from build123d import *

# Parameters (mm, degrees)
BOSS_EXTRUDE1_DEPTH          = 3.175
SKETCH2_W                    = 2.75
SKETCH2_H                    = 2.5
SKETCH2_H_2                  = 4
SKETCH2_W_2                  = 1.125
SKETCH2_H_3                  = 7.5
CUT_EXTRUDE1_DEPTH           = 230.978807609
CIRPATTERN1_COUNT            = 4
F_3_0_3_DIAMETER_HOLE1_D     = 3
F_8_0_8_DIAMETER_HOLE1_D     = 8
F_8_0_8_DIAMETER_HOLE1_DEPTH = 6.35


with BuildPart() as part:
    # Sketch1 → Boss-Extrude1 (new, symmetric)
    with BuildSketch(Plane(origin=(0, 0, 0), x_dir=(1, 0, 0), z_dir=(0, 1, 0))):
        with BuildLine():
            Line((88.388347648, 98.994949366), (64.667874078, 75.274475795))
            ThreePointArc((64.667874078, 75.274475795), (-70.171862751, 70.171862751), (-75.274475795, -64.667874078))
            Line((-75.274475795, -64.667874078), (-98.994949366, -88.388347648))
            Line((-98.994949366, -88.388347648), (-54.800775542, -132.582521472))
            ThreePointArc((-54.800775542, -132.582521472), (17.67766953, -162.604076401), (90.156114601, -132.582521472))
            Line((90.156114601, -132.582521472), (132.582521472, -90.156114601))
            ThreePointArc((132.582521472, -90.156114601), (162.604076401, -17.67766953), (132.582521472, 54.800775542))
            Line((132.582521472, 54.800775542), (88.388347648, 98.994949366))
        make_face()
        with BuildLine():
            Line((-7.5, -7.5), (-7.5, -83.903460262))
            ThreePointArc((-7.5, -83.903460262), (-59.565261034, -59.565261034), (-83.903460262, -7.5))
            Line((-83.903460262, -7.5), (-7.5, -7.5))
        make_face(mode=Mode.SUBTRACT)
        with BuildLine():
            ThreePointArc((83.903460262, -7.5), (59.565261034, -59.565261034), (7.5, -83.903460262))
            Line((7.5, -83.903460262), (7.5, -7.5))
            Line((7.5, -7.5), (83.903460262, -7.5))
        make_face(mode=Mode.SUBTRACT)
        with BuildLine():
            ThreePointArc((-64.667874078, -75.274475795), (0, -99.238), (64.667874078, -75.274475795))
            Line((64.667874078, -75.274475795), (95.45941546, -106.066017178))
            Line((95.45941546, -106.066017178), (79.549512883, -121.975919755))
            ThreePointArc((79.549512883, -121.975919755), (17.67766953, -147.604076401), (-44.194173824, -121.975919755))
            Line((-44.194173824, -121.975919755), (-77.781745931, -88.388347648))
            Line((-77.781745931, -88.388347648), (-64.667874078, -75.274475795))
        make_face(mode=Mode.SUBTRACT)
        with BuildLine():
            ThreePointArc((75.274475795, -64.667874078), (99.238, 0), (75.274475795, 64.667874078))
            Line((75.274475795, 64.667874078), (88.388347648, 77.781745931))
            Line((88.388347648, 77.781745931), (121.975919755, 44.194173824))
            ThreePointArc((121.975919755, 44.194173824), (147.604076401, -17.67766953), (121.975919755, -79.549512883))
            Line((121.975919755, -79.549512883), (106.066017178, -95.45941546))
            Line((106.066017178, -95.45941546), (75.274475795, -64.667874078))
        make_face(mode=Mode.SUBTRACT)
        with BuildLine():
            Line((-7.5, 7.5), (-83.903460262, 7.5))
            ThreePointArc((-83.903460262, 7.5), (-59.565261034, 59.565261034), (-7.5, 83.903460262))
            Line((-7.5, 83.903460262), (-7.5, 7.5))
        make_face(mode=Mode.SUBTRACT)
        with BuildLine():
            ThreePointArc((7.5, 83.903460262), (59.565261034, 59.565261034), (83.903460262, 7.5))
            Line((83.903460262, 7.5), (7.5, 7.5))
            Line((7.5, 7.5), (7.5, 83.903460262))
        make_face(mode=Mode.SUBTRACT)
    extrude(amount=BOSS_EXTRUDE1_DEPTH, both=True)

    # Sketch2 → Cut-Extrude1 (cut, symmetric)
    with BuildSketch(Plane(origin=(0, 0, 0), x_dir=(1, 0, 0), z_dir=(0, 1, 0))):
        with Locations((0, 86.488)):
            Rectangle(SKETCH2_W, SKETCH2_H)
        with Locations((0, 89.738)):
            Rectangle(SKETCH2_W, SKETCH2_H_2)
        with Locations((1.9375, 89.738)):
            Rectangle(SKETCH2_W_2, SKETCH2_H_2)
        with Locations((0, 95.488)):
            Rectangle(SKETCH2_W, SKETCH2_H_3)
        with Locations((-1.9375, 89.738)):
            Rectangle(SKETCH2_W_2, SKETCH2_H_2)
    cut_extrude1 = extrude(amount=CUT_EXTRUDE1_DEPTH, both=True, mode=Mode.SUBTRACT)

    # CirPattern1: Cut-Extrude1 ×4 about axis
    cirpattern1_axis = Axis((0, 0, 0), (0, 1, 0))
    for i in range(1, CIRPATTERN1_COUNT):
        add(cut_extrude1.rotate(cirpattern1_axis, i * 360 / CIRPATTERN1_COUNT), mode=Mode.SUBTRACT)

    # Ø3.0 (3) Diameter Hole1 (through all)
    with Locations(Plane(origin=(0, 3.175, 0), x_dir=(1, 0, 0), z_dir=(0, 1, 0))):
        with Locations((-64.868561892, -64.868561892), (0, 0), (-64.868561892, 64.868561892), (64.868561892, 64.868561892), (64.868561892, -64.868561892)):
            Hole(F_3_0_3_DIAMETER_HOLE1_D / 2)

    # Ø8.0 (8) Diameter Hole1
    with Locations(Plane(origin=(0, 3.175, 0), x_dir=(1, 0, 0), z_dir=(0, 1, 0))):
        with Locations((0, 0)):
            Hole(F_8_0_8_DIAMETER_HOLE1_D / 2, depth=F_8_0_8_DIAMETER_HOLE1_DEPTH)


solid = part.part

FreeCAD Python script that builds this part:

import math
import FreeCAD as App
import Part
import Sketcher
from FreeCAD import Vector
Q = App.Units.Quantity


def add_polygon(sketch, points):
    """Adds a closed chain of lines whose ends are joined by coincident constraints."""
    first, n = sketch.GeometryCount, len(points)
    for a, b in zip(points, points[1:] + points[:1]):
        sketch.addGeometry(Part.LineSegment(App.Vector(*a, 0), App.Vector(*b, 0)), False)
    for i in range(n):
        sketch.addConstraint(Sketcher.Constraint("Coincident", first + i, 2, first + (i + 1) % n, 1))

doc = App.newDocument("Part")
params = doc.addObject("Spreadsheet::Sheet", "Params")
for row, (alias, value) in enumerate([
    ("sketch1_radius", "102.5 mm"),
    ("sketch1_radius2", "87.5 mm"),
    ("sketch1_length", "60 mm"),
    ("sketch1_length2", "62.5 mm"),
    ("pad1_length", "6.35 mm"),
    ("sketch2_height", "4 mm"),
    ("sketch2_height2", "2.5 mm"),
    ("sketch2_height3", "7.5 mm"),
    ("sketch2_width", "2.75 mm"),
    ("pocket1_length", "461.957615 mm"),
    ("sketch3_diameter", "3 mm"),
    ("hole_diameter", "3 mm"),
    ("sketch4_diameter", "8 mm"),
    ("hole2_diameter", "8 mm"),
    ("hole2_depth", "6.35 mm"),
], start=1):
    params.set(f"A{row}", alias)
    params.set(f"B{row}", "=" + value)
    params.setAlias(f"B{row}", alias)

body = doc.addObject("PartDesign::Body", "Body")

# Sketch on XZ plane
sketch1 = body.newObject("Sketcher::SketchObject", "Sketch")
sketch1.AttachmentSupport = (doc.getObject("XZ_Plane"), [""])
sketch1.MapMode = "FlatFace"
sketch1.addGeometry([
    Part.LineSegment(Vector(88.388348, -98.994949, 0), Vector(64.667874, -75.274476, 0)),  # 0
    Part.ArcOfCircle(Part.Circle(Vector(0, 0, 0), Vector(0, 0, 1), 99.238), math.radians(139.334312), math.radians(310.665688)),  # 1
    Part.LineSegment(Vector(-75.274476, 64.667874, 0), Vector(-98.994949, 88.388348, 0)),  # 2
    Part.LineSegment(Vector(-98.994949, 88.388348, 0), Vector(-54.800776, 132.582521, 0)),  # 3
    Part.ArcOfCircle(Part.Circle(Vector(17.67767, 60.104076, 0), Vector(0, 0, 1), 102.5), math.radians(45), math.radians(135)),  # 4
    Part.LineSegment(Vector(90.156115, 132.582521, 0), Vector(132.582521, 90.156115, 0)),  # 5
    Part.ArcOfCircle(Part.Circle(Vector(60.104076, 17.67767, 0), Vector(0, 0, 1), 102.5), math.radians(-45), math.radians(45)),  # 6
    Part.LineSegment(Vector(132.582521, -54.800776, 0), Vector(88.388348, -98.994949, 0)),  # 7
    Part.LineSegment(Vector(-77.781746, 88.388348, 0), Vector(-64.667874, 75.274476, 0)),  # 8
    Part.ArcOfCircle(Part.Circle(Vector(0, 0, 0), Vector(0, 0, 1), 99.238), math.radians(49.334312), math.radians(130.665688)),  # 9
    Part.LineSegment(Vector(64.667874, 75.274476, 0), Vector(95.459415, 106.066017, 0)),  # 10
    Part.LineSegment(Vector(95.459415, 106.066017, 0), Vector(79.549513, 121.97592, 0)),  # 11
    Part.ArcOfCircle(Part.Circle(Vector(17.67767, 60.104076, 0), Vector(0, 0, 1), 87.5), math.radians(45), math.radians(135)),  # 12
    Part.LineSegment(Vector(-44.194174, 121.97592, 0), Vector(-77.781746, 88.388348, 0)),  # 13
    Part.LineSegment(Vector(-83.90346, 7.5, 0), Vector(-7.5, 7.5, 0)),  # 14
    Part.LineSegment(Vector(-7.5, 7.5, 0), Vector(-7.5, 83.90346, 0)),  # 15
    Part.ArcOfCircle(Part.Circle(Vector(0, 0, 0), Vector(0, 0, 1), 84.238), math.radians(95.108005), math.radians(174.891995)),  # 16
    Part.LineSegment(Vector(7.5, 7.5, 0), Vector(83.90346, 7.5, 0)),  # 17
    Part.ArcOfCircle(Part.Circle(Vector(0, 0, 0), Vector(0, 0, 1), 84.238), math.radians(5.108005), math.radians(84.891995)),  # 18
    Part.LineSegment(Vector(7.5, 83.90346, 0), Vector(7.5, 7.5, 0)),  # 19
    Part.LineSegment(Vector(-7.5, -83.90346, 0), Vector(-7.5, -7.5, 0)),  # 20
    Part.LineSegment(Vector(-7.5, -7.5, 0), Vector(-83.90346, -7.5, 0)),  # 21
    Part.ArcOfCircle(Part.Circle(Vector(0, 0, 0), Vector(0, 0, 1), 84.238), math.radians(-174.891995), math.radians(-95.108005)),  # 22
    Part.LineSegment(Vector(106.066017, 95.459415, 0), Vector(75.274476, 64.667874, 0)),  # 23
    Part.ArcOfCircle(Part.Circle(Vector(0, 0, 0), Vector(0, 0, 1), 99.238), math.radians(-40.665688), math.radians(40.665688)),  # 24
    Part.LineSegment(Vector(75.274476, -64.667874, 0), Vector(88.388348, -77.781746, 0)),  # 25
    Part.LineSegment(Vector(88.388348, -77.781746, 0), Vector(121.97592, -44.194174, 0)),  # 26
    Part.ArcOfCircle(Part.Circle(Vector(60.104076, 17.67767, 0), Vector(0, 0, 1), 87.5), math.radians(-45), math.radians(45)),  # 27
    Part.LineSegment(Vector(121.97592, 79.549513, 0), Vector(106.066017, 95.459415, 0)),  # 28
    Part.LineSegment(Vector(7.5, -7.5, 0), Vector(7.5, -83.90346, 0)),  # 29
    Part.ArcOfCircle(Part.Circle(Vector(0, 0, 0), Vector(0, 0, 1), 84.238), math.radians(-84.891995), math.radians(-5.108005)),  # 30
    Part.LineSegment(Vector(83.90346, -7.5, 0), Vector(7.5, -7.5, 0)),  # 31
], False)
sketch1.addConstraint([
    Sketcher.Constraint("Coincident", 0, 2, 1, 2),
    Sketcher.Constraint("Coincident", 1, 1, 2, 1),
    Sketcher.Constraint("Coincident", 2, 2, 3, 1),
    Sketcher.Constraint("Tangent", 3, 2, 4, 2),
    Sketcher.Constraint("Tangent", 4, 1, 5, 1),
    Sketcher.Constraint("Tangent", 5, 2, 6, 2),
    Sketcher.Constraint("Tangent", 6, 1, 7, 1),
    Sketcher.Constraint("Coincident", 7, 2, 0, 1),
    Sketcher.Constraint("Coincident", 8, 2, 9, 2),
    Sketcher.Constraint("Coincident", 9, 1, 10, 1),
    Sketcher.Constraint("Coincident", 10, 2, 11, 1),
    Sketcher.Constraint("Tangent", 11, 2, 12, 1),
    Sketcher.Constraint("Tangent", 12, 2, 13, 1),
    Sketcher.Constraint("Coincident", 13, 2, 8, 1),
    Sketcher.Constraint("Coincident", 14, 2, 15, 1),
    Sketcher.Constraint("Coincident", 15, 2, 16, 1),
    Sketcher.Constraint("Coincident", 16, 2, 14, 1),
    Sketcher.Constraint("Coincident", 17, 2, 18, 1),
    Sketcher.Constraint("Coincident", 18, 2, 19, 1),
    Sketcher.Constraint("Coincident", 19, 2, 17, 1),
    Sketcher.Constraint("Coincident", 20, 2, 21, 1),
    Sketcher.Constraint("Coincident", 21, 2, 22, 1),
    Sketcher.Constraint("Coincident", 22, 2, 20, 1),
    Sketcher.Constraint("Coincident", 23, 2, 24, 2),
    Sketcher.Constraint("Coincident", 24, 1, 25, 1),
    Sketcher.Constraint("Coincident", 25, 2, 26, 1),
    Sketcher.Constraint("Tangent", 26, 2, 27, 1),
    Sketcher.Constraint("Tangent", 27, 2, 28, 1),
    Sketcher.Constraint("Coincident", 28, 2, 23, 1),
    Sketcher.Constraint("Coincident", 29, 2, 30, 1),
    Sketcher.Constraint("Coincident", 30, 2, 31, 1),
    Sketcher.Constraint("Coincident", 31, 2, 29, 1),
    Sketcher.Constraint("Horizontal", 14),
    Sketcher.Constraint("Vertical", 15),
    Sketcher.Constraint("Horizontal", 17),
    Sketcher.Constraint("Vertical", 19),
    Sketcher.Constraint("Vertical", 20),
    Sketcher.Constraint("Horizontal", 21),
    Sketcher.Constraint("Vertical", 29),
    Sketcher.Constraint("Horizontal", 31),
    Sketcher.Constraint("Coincident", 1, 3, -1, 1),
    Sketcher.Constraint("Coincident", 9, 3, -1, 1),
    Sketcher.Constraint("Coincident", 16, 3, -1, 1),
    Sketcher.Constraint("Coincident", 18, 3, -1, 1),
    Sketcher.Constraint("Coincident", 22, 3, -1, 1),
    Sketcher.Constraint("Coincident", 24, 3, -1, 1),
    Sketcher.Constraint("Coincident", 30, 3, -1, 1),
    Sketcher.Constraint("Coincident", 12, 3, 4, 3),
    Sketcher.Constraint("Coincident", 27, 3, 6, 3),
    Sketcher.Constraint("Equal", 4, 6),
    Sketcher.Constraint("Equal", 1, 9),
    Sketcher.Constraint("Equal", 16, 18),
    Sketcher.Constraint("Equal", 18, 22),
    Sketcher.Constraint("Equal", 9, 24),
    Sketcher.Constraint("Equal", 12, 27),
    Sketcher.Constraint("Equal", 22, 30),
    Sketcher.Constraint("Symmetric", 19, 2, 20, 2, -1, 1),
    Sketcher.Constraint("Symmetric", 14, 2, 31, 2, -1, 1),
    Sketcher.Constraint("Symmetric", 14, 2, 19, 2, -2),
    Sketcher.Constraint("Parallel", 0, 2),
    Sketcher.Constraint("Perpendicular", 2, 3),
    Sketcher.Constraint("Perpendicular", 3, 5),
    Sketcher.Constraint("Perpendicular", 5, 7),
    Sketcher.Constraint("Perpendicular", 7, 8),
    Sketcher.Constraint("Perpendicular", 8, 10),
    Sketcher.Constraint("Perpendicular", 10, 11),
    Sketcher.Constraint("Perpendicular", 11, 13),
    Sketcher.Constraint("Parallel", 13, 23),
    Sketcher.Constraint("Perpendicular", 23, 25),
    Sketcher.Constraint("Perpendicular", 25, 26),
    Sketcher.Constraint("Perpendicular", 26, 28),
    Sketcher.Constraint("Horizontal", 3, 2, 4, 1),
    Sketcher.Constraint("Horizontal", 8, 2, 9, 1),
    Sketcher.Constraint("Horizontal", 2, 2, 13, 2),
    Sketcher.Constraint("Horizontal", 1, 1, 23, 2),
    Sketcher.Constraint("Vertical", 0, 2, 9, 1),
    Sketcher.Constraint("Vertical", 23, 2, 24, 1),
    Sketcher.Constraint("Equal", 31, 15),
    Sketcher.Constraint("Equal", 0, 2),
    Sketcher.Constraint("Equal", 3, 7),
    Sketcher.Constraint("Radius", 4, Q("102.5 mm")),
    Sketcher.Constraint("Radius", 12, Q("87.5 mm")),
    Sketcher.Constraint("Distance", 5, Q("60 mm")),
    Sketcher.Constraint("Radius", 1, Q("99.238 mm")),
    Sketcher.Constraint("Radius", 16, Q("84.238 mm")),
    Sketcher.Constraint("DistanceX", 15, 2, 18, 2, Q("15 mm")),
    Sketcher.Constraint("Distance", 3, Q("62.5 mm")),
])
sketch1.setExpression("Constraints[80]", "Params.sketch1_radius")
sketch1.setExpression("Constraints[81]", "Params.sketch1_radius2")
sketch1.setExpression("Constraints[82]", "Params.sketch1_length")
sketch1.setExpression("Constraints[86]", "Params.sketch1_length2")
pad1 = body.newObject("PartDesign::Pad", "Pad")
pad1.Profile = sketch1
pad1.setExpression("Length", "Params.pad1_length")
pad1.Midplane = True

# Sketch on XZ plane
sketch2 = body.newObject("Sketcher::SketchObject", "Sketch001")
sketch2.AttachmentSupport = (doc.getObject("XZ_Plane"), [""])
sketch2.MapMode = "FlatFace"
add_polygon(sketch2, [(-1.375, -85.238), (1.375, -85.238), (1.375, -87.738), (2.5, -87.738), (2.5, -91.738), (1.375, -91.738), (1.375, -99.238), (-1.375, -99.238), (-1.375, -91.738), (-2.5, -91.738), (-2.5, -87.738), (-1.375, -87.738)])  # lines 0-11
sketch2.addConstraint([
    Sketcher.Constraint("Horizontal", 0),
    Sketcher.Constraint("Vertical", 1),
    Sketcher.Constraint("Horizontal", 2),
    Sketcher.Constraint("Vertical", 3),
    Sketcher.Constraint("Horizontal", 4),
    Sketcher.Constraint("Vertical", 5),
    Sketcher.Constraint("Horizontal", 6),
    Sketcher.Constraint("Vertical", 7),
    Sketcher.Constraint("Horizontal", 8),
    Sketcher.Constraint("Vertical", 9),
    Sketcher.Constraint("Horizontal", 10),
    Sketcher.Constraint("Vertical", 11),
    Sketcher.Constraint("Symmetric", 4, 2, 7, 2, -2),
    Sketcher.Constraint("Symmetric", 2, 2, 9, 2, -2),
    Sketcher.Constraint("Vertical", 1, 2, 4, 2),
    Sketcher.Constraint("Vertical", 7, 2, 10, 2),
    Sketcher.Constraint("DistanceY", 3, 2, 3, 1, Q("4 mm")),
    Sketcher.Constraint("DistanceY", 1, 2, 1, 1, Q("2.5 mm")),
    Sketcher.Constraint("DistanceY", 5, 2, 5, 1, Q("7.5 mm")),
    Sketcher.Constraint("DistanceX", 8, 2, 3, 2, Q("5 mm")),
    Sketcher.Constraint("DistanceX", 0, 1, 0, 2, Q("2.75 mm")),
    Sketcher.Constraint("DistanceY", 0, 2, -1, 1, Q("85.238 mm")),
])
sketch2.setExpression("Constraints[28]", "Params.sketch2_height")
sketch2.setExpression("Constraints[29]", "Params.sketch2_height2")
sketch2.setExpression("Constraints[30]", "Params.sketch2_height3")
sketch2.setExpression("Constraints[32]", "Params.sketch2_width")
pocket1 = body.newObject("PartDesign::Pocket", "Pocket")
pocket1.Profile = sketch2
pocket1.setExpression("Length", "Params.pocket1_length")
pocket1.Midplane = True
doc.recompute()

polarpattern = body.newObject("PartDesign::PolarPattern", "PolarPattern")
polarpattern.Originals = [pocket1]
polarpattern.Axis = (doc.getObject("Y_Axis"), [""])
polarpattern.Angle = 360
polarpattern.Occurrences = 4
body.Tip = polarpattern

# Sketch on XZ plane
sketch3 = body.newObject("Sketcher::SketchObject", "Sketch002")
sketch3.AttachmentSupport = (doc.getObject("XZ_Plane"), [""])
sketch3.MapMode = "FlatFace"
sketch3.AttachmentOffset = App.Placement(Vector(0, 0, -3.175), App.Rotation())
sketch3.addGeometry([
    Part.Circle(Vector(-64.868562, 64.868562, 0), Vector(0, 0, 1), 1.5),  # 0
    Part.Circle(Vector(0, 0, 0), Vector(0, 0, 1), 1.5),  # 1
    Part.Circle(Vector(-64.868562, -64.868562, 0), Vector(0, 0, 1), 1.5),  # 2
    Part.Circle(Vector(64.868562, -64.868562, 0), Vector(0, 0, 1), 1.5),  # 3
    Part.Circle(Vector(64.868562, 64.868562, 0), Vector(0, 0, 1), 1.5),  # 4
], False)
sketch3.addConstraint([
    Sketcher.Constraint("Coincident", 1, 3, -1, 1),
    Sketcher.Constraint("Equal", 0, 1),
    Sketcher.Constraint("Equal", 1, 2),
    Sketcher.Constraint("Equal", 2, 3),
    Sketcher.Constraint("Equal", 3, 4),
    Sketcher.Constraint("Symmetric", 0, 3, 3, 3, -1, 1),
    Sketcher.Constraint("Symmetric", 2, 3, 4, 3, -1, 1),
    Sketcher.Constraint("Symmetric", 2, 3, 3, 3, -2),
    Sketcher.Constraint("Diameter", 0, Q("3 mm")),
    Sketcher.Constraint("DistanceX", 0, 3, -1, 1, Q("64.868562 mm")),
    Sketcher.Constraint("DistanceY", -1, 1, 0, 3, Q("64.868562 mm")),
])
sketch3.setExpression("Constraints[8]", "Params.sketch3_diameter")
doc.recompute()
hole = body.newObject("PartDesign::Hole", "Hole")
hole.Profile = sketch3
hole.ThreadType = "None"
hole.setExpression("Diameter", "Params.hole_diameter")
hole.DepthType = "ThroughAll"
hole.Reversed = True

# Sketch on XZ plane
sketch4 = body.newObject("Sketcher::SketchObject", "Sketch003")
sketch4.AttachmentSupport = (doc.getObject("XZ_Plane"), [""])
sketch4.MapMode = "FlatFace"
sketch4.AttachmentOffset = App.Placement(Vector(0, 0, -3.175), App.Rotation())
sketch4.addGeometry(Part.Circle(Vector(0, 0, 0), Vector(0, 0, 1), 4), False)
sketch4.addConstraint([
    Sketcher.Constraint("Coincident", 0, 3, -1, 1),
    Sketcher.Constraint("Diameter", 0, Q("8 mm")),
])
sketch4.setExpression("Constraints[1]", "Params.sketch4_diameter")
doc.recompute()
hole2 = body.newObject("PartDesign::Hole", "Hole001")
hole2.Profile = sketch4
hole2.ThreadType = "None"
hole2.setExpression("Diameter", "Params.hole2_diameter")
hole2.DepthType = "Dimension"
hole2.setExpression("Depth", "Params.hole2_depth")
hole2.DrillPoint = "Flat"
hole2.Reversed = True

doc.recompute()
